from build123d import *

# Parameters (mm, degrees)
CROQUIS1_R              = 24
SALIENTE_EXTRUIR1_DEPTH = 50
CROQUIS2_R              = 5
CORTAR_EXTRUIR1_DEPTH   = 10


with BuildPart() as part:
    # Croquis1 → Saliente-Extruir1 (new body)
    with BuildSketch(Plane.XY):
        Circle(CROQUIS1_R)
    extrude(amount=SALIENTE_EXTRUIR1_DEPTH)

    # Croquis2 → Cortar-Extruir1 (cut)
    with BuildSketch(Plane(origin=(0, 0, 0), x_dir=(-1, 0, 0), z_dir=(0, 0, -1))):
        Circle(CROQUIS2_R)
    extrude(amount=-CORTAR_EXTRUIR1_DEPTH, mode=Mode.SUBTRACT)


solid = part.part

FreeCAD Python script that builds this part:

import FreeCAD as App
import Part
import Sketcher

doc = App.newDocument("Part")
params = doc.addObject("Spreadsheet::Sheet", "Params")
for row, (alias, value) in enumerate([
    ("sketch1_diameter", "48 mm"),
    ("pad1_length", "50 mm"),
    ("sketch2_diameter", "10 mm"),
    ("pocket1_length", "10 mm"),
], start=1):
    params.set(f"A{row}", alias)
    params.set(f"B{row}", "=" + value)
    params.setAlias(f"B{row}", alias)

body = doc.addObject("PartDesign::Body", "Body")

# Sketch on XY plane
sketch1 = doc.addObject("Sketcher::SketchObject", "Sketch")
body.addObject(sketch1)
sketch1.AttachmentSupport = (doc.XY_Plane, [""])
sketch1.MapMode = "FlatFace"
sketch1.addGeometry(Part.Circle(App.Vector(0, 0, 0), App.Vector(0, 0, 1), 24), False)
sketch1.addConstraint(Sketcher.Constraint("Coincident", 0, 3, -1, 1))
sketch1.addConstraint(Sketcher.Constraint("Diameter", 0, 48.0))
sketch1.setExpression("Constraints[1]", "Params.sketch1_diameter")
pad1 = doc.addObject("PartDesign::Pad", "Pad")
body.addObject(pad1)
pad1.Profile = sketch1
pad1.setExpression("Length", "Params.pad1_length")

# Sketch on XY plane
sketch2 = doc.addObject("Sketcher::SketchObject", "Sketch001")
body.addObject(sketch2)
sketch2.AttachmentSupport = (doc.XY_Plane, [""])
sketch2.MapMode = "FlatFace"
sketch2.addGeometry(Part.Circle(App.Vector(0, 0, 0), App.Vector(0, 0, 1), 5), False)
sketch2.addConstraint(Sketcher.Constraint("Coincident", 0, 3, -1, 1))
sketch2.addConstraint(Sketcher.Constraint("Diameter", 0, 10.0))
sketch2.setExpression("Constraints[1]", "Params.sketch2_diameter")
pocket1 = doc.addObject("PartDesign::Pocket", "Pocket")
body.addObject(pocket1)
pocket1.Profile = sketch2
pocket1.setExpression("Length", "Params.pocket1_length")
pocket1.Reversed = True

doc.recompute()
